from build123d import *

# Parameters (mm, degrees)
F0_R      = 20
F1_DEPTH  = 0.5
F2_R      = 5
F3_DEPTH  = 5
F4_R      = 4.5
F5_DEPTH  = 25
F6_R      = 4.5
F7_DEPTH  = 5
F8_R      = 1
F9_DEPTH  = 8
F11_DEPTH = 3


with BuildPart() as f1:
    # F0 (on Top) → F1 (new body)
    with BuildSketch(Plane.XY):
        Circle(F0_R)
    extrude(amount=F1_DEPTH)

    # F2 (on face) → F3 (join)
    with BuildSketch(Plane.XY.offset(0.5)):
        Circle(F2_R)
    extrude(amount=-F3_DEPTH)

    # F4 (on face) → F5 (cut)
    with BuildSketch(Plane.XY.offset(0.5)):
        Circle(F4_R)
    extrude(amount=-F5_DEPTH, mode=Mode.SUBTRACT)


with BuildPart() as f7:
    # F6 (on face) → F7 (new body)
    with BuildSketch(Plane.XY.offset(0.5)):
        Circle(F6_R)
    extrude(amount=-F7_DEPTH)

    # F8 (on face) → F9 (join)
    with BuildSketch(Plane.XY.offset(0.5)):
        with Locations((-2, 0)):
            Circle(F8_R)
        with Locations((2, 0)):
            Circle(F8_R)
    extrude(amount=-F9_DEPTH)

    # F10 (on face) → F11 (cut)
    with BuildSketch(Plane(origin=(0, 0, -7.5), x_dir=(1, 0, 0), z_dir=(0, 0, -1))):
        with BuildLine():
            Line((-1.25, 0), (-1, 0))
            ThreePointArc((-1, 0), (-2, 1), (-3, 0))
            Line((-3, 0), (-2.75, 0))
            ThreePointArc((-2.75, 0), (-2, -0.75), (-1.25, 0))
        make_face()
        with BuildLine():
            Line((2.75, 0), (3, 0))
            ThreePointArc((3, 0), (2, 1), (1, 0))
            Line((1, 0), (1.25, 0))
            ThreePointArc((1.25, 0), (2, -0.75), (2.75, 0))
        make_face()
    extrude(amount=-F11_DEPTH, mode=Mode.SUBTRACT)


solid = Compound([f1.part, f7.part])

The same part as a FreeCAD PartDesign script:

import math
import FreeCAD as App
import Part
import Sketcher
from FreeCAD import Vector

doc = App.newDocument("Part")
body = doc.addObject("PartDesign::Body", "Body")

sketch1 = body.newObject("Sketcher::SketchObject", "Sketch")
sketch1.AttachmentSupport = (doc.getObject("XY_Plane"), [""])
sketch1.MapMode = "FlatFace"
sketch1.addGeometry(Part.Circle(Vector(0, 0, 0), Vector(0, 0, 1), 20), False)
sketch1.addConstraint([
    Sketcher.Constraint("Coincident", 0, 3, -1, 1),
    Sketcher.Constraint("Diameter", 0, 40.0),
])
pad1 = body.newObject("PartDesign::Pad", "Pad")
pad1.Profile = sketch1
pad1.Length = 0.5

sketch2 = body.newObject("Sketcher::SketchObject", "Sketch001")
sketch2.AttachmentSupport = (doc.getObject("XY_Plane"), [""])
sketch2.MapMode = "FlatFace"
sketch2.AttachmentOffset = App.Placement(Vector(0, 0, 0.5), App.Rotation())
sketch2.addGeometry(Part.Circle(Vector(0, 0, 0), Vector(0, 0, 1), 5), False)
sketch2.addConstraint([
    Sketcher.Constraint("Coincident", 0, 3, -1, 1),
    Sketcher.Constraint("Diameter", 0, 10.0),
])
pad2 = body.newObject("PartDesign::Pad", "Pad001")
pad2.Profile = sketch2
pad2.Length = 5
pad2.Reversed = True

sketch3 = body.newObject("Sketcher::SketchObject", "Sketch002")
sketch3.AttachmentSupport = (doc.getObject("XY_Plane"), [""])
sketch3.MapMode = "FlatFace"
sketch3.AttachmentOffset = App.Placement(Vector(0, 0, 0.5), App.Rotation())
sketch3.addGeometry(Part.Circle(Vector(0, 0, 0), Vector(0, 0, 1), 4.5), False)
sketch3.addConstraint([
    Sketcher.Constraint("Coincident", 0, 3, -1, 1),
    Sketcher.Constraint("Diameter", 0, 9.0),
])
pocket1 = body.newObject("PartDesign::Pocket", "Pocket")
pocket1.Profile = sketch3
pocket1.Length = 25
body2 = doc.addObject("PartDesign::Body", "Body001")

sketch4 = body2.newObject("Sketcher::SketchObject", "Sketch003")
sketch4.AttachmentSupport = (doc.getObject("XY_Plane001"), [""])
sketch4.MapMode = "FlatFace"
sketch4.AttachmentOffset = App.Placement(Vector(0, 0, 0.5), App.Rotation())
sketch4.addGeometry(Part.Circle(Vector(0, 0, 0), Vector(0, 0, 1), 4.5), False)
sketch4.addConstraint([
    Sketcher.Constraint("Coincident", 0, 3, -1, 1),
    Sketcher.Constraint("Diameter", 0, 9.0),
])
pad3 = body2.newObject("PartDesign::Pad", "Pad002")
pad3.Profile = sketch4
pad3.Length = 5
pad3.Reversed = True

sketch5 = body2.newObject("Sketcher::SketchObject", "Sketch004")
sketch5.AttachmentSupport = (doc.getObject("XY_Plane001"), [""])
sketch5.MapMode = "FlatFace"
sketch5.AttachmentOffset = App.Placement(Vector(0, 0, 0.5), App.Rotation())
sketch5.addGeometry([
    Part.Circle(Vector(-2, 0, 0), Vector(0, 0, 1), 1),
    Part.Circle(Vector(2, 0, 0), Vector(0, 0, 1), 1),
], False)
sketch5.addConstraint([
    Sketcher.Constraint("Equal", 0, 1),
    Sketcher.Constraint("Symmetric", 0, 3, 1, 3, -1, 1),
    Sketcher.Constraint("PointOnObject", 0, 3, -1),
    Sketcher.Constraint("Diameter", 0, 2.0),
    Sketcher.Constraint("DistanceX", 0, 3, -1, 1, 2.0),
])
pad4 = body2.newObject("PartDesign::Pad", "Pad003")
pad4.Profile = sketch5
pad4.Length = 8
pad4.Reversed = True

sketch6 = body2.newObject("Sketcher::SketchObject", "Sketch005")
sketch6.AttachmentSupport = (doc.getObject("XY_Plane001"), [""])
sketch6.MapMode = "FlatFace"
sketch6.AttachmentOffset = App.Placement(Vector(0, 0, -7.5), App.Rotation())
sketch6.addGeometry([
    Part.LineSegment(Vector(-1.25, 0, 0), Vector(-1, 0, 0)),
    Part.ArcOfCircle(Part.Circle(Vector(-2, 0, 0), Vector(0, 0, 1), 1), math.radians(180), math.radians(360)),
    Part.LineSegment(Vector(-3, 0, 0), Vector(-2.75, 0, 0)),
    Part.ArcOfCircle(Part.Circle(Vector(-2, 0, 0), Vector(0, 0, 1), 0.75), math.radians(0), math.radians(180)),
    Part.LineSegment(Vector(2.75, 0, 0), Vector(3, 0, 0)),
    Part.ArcOfCircle(Part.Circle(Vector(2, 0, 0), Vector(0, 0, 1), 1), math.radians(180), math.radians(360)),
    Part.LineSegment(Vector(1, 0, 0), Vector(1.25, 0, 0)),
    Part.ArcOfCircle(Part.Circle(Vector(2, 0, 0), Vector(0, 0, 1), 0.75), math.radians(0), math.radians(180)),
], False)
sketch6.addConstraint([
    Sketcher.Constraint("Coincident", 0, 2, 1, 2),
    Sketcher.Constraint("Coincident", 1, 1, 2, 1),
    Sketcher.Constraint("Coincident", 2, 2, 3, 2),
    Sketcher.Constraint("Coincident", 3, 1, 0, 1),
    Sketcher.Constraint("Coincident", 4, 2, 5, 2),
    Sketcher.Constraint("Coincident", 5, 1, 6, 1),
    Sketcher.Constraint("Coincident", 6, 2, 7, 2),
    Sketcher.Constraint("Coincident", 7, 1, 4, 1),
    Sketcher.Constraint("Horizontal", 0),
    Sketcher.Constraint("Horizontal", 2),
    Sketcher.Constraint("Horizontal", 4),
    Sketcher.Constraint("Horizontal", 6),
    Sketcher.Constraint("Coincident", 3, 3, 1, 3),
    Sketcher.Constraint("Coincident", 7, 3, 5, 3),
    Sketcher.Constraint("Equal", 1, 5),
    Sketcher.Constraint("Equal", 3, 7),
    Sketcher.Constraint("Symmetric", 1, 3, 5, 3, -1, 1),
    Sketcher.Constraint("PointOnObject", 1, 3, -1),
    Sketcher.Constraint("PointOnObject", 0, 2, -1),
    Sketcher.Constraint("PointOnObject", 1, 1, -1),
    Sketcher.Constraint("PointOnObject", 4, 2, -1),
    Sketcher.Constraint("PointOnObject", 5, 1, -1),
    Sketcher.Constraint("Radius", 1, 1.0),
    Sketcher.Constraint("Radius", 3, 0.75),
    Sketcher.Constraint("DistanceX", 1, 3, -1, 1, 2.0),
])
pocket2 = body2.newObject("PartDesign::Pocket", "Pocket001")
pocket2.Profile = sketch6
pocket2.Length = 3
pocket2.Reversed = True

doc.recompute()
